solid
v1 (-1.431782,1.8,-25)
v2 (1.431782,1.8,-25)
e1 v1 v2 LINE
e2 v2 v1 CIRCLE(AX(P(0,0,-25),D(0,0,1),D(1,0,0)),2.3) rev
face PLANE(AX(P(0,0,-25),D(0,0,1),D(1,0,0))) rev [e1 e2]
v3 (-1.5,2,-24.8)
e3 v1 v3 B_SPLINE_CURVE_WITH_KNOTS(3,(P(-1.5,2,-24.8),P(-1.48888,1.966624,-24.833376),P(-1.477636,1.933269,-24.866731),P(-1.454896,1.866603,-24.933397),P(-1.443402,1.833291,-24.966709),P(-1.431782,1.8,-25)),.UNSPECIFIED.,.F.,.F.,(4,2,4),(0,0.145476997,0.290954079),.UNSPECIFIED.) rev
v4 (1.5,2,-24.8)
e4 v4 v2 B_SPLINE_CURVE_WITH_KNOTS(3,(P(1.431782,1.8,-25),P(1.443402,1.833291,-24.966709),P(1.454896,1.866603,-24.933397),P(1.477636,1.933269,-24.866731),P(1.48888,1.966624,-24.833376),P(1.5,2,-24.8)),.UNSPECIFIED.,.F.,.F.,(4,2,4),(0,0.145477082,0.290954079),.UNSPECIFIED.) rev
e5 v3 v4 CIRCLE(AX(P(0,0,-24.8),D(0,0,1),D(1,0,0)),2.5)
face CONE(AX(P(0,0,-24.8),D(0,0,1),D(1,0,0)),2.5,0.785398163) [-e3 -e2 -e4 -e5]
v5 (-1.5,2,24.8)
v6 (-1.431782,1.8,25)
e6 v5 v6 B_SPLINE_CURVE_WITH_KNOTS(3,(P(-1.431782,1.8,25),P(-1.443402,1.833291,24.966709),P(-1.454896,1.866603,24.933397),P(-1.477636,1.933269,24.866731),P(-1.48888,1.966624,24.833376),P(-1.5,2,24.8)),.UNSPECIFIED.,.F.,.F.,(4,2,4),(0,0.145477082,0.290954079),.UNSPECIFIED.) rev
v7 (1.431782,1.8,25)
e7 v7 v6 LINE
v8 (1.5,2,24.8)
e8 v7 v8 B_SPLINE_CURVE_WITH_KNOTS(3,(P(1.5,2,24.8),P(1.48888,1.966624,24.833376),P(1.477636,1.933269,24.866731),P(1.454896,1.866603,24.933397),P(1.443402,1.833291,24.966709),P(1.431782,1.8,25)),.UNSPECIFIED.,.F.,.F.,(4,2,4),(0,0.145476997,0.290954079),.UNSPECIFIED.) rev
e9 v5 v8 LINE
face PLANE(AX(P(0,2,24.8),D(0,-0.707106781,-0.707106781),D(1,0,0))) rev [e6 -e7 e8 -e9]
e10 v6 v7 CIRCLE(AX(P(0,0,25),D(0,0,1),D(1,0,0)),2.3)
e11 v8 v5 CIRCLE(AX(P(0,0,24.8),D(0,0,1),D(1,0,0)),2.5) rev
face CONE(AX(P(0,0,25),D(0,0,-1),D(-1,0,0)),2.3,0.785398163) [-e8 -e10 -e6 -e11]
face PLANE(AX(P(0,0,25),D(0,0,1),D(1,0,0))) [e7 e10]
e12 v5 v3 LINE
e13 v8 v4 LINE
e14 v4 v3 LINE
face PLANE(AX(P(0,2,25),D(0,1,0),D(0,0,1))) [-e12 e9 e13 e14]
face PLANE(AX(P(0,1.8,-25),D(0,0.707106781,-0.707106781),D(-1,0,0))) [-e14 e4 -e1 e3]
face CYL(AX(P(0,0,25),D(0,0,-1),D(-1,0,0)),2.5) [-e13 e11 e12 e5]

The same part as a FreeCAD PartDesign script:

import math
import FreeCAD as App
import Part
import Sketcher
from FreeCAD import Vector
Q = App.Units.Quantity


def edges_at(feature, points):
    """Names of the edges that pass closest to the given points."""
    edges = feature.Shape.Edges
    near = lambda p: min(range(len(edges)), key=lambda i: edges[i].distToShape(Part.Vertex(*p))[0])
    return sorted({f"Edge{near(p) + 1}" for p in points})

doc = App.newDocument("Part")
body = doc.addObject("PartDesign::Body", "Body")

sketch1 = body.newObject("Sketcher::SketchObject", "Sketch")
sketch1.AttachmentSupport = (doc.getObject("XY_Plane"), [""])
sketch1.MapMode = "FlatFace"
sketch1.addGeometry([
    Part.LineSegment(Vector(1.5, 2, 0), Vector(-1.5, 2, 0)),
    Part.ArcOfCircle(Part.Circle(Vector(0, 0, 0), Vector(0, 0, 1), 2.5), math.radians(126.869898), math.radians(360)),
    Part.ArcOfCircle(Part.Circle(Vector(0, 0, 0), Vector(0, 0, 1), 2.5), math.radians(0), math.radians(53.130102)),
], False)
sketch1.addConstraint([
    Sketcher.Constraint("Coincident", 0, 2, 1, 1),
    Sketcher.Constraint("Tangent", 1, 2, 2, 1),
    Sketcher.Constraint("Coincident", 2, 2, 0, 1),
    Sketcher.Constraint("Horizontal", 0),
    Sketcher.Constraint("Coincident", 1, 3, -1, 1),
    Sketcher.Constraint("Equal", 1, 2),
    Sketcher.Constraint("PointOnObject", 1, 2, -1),
    Sketcher.Constraint("Radius", 1, Q("2.5 mm")),
    Sketcher.Constraint("DistanceX", 0, 2, 0, 1, Q("3 mm")),
])
pad1 = body.newObject("PartDesign::Pad", "Pad")
pad1.Profile = sketch1
pad1.Length = 50
pad1.Midplane = True
doc.recompute()

chamfer = body.newObject("PartDesign::Chamfer", "Chamfer")
chamfer.Base = (pad1, edges_at(pad1, [
    (0, 2, -25),
    (-1.118, -2.236, 25),
    (-1.118, -2.236, -25),
    (0, 2, 25),
]))
chamfer.Size = 0.2

doc.recompute()
